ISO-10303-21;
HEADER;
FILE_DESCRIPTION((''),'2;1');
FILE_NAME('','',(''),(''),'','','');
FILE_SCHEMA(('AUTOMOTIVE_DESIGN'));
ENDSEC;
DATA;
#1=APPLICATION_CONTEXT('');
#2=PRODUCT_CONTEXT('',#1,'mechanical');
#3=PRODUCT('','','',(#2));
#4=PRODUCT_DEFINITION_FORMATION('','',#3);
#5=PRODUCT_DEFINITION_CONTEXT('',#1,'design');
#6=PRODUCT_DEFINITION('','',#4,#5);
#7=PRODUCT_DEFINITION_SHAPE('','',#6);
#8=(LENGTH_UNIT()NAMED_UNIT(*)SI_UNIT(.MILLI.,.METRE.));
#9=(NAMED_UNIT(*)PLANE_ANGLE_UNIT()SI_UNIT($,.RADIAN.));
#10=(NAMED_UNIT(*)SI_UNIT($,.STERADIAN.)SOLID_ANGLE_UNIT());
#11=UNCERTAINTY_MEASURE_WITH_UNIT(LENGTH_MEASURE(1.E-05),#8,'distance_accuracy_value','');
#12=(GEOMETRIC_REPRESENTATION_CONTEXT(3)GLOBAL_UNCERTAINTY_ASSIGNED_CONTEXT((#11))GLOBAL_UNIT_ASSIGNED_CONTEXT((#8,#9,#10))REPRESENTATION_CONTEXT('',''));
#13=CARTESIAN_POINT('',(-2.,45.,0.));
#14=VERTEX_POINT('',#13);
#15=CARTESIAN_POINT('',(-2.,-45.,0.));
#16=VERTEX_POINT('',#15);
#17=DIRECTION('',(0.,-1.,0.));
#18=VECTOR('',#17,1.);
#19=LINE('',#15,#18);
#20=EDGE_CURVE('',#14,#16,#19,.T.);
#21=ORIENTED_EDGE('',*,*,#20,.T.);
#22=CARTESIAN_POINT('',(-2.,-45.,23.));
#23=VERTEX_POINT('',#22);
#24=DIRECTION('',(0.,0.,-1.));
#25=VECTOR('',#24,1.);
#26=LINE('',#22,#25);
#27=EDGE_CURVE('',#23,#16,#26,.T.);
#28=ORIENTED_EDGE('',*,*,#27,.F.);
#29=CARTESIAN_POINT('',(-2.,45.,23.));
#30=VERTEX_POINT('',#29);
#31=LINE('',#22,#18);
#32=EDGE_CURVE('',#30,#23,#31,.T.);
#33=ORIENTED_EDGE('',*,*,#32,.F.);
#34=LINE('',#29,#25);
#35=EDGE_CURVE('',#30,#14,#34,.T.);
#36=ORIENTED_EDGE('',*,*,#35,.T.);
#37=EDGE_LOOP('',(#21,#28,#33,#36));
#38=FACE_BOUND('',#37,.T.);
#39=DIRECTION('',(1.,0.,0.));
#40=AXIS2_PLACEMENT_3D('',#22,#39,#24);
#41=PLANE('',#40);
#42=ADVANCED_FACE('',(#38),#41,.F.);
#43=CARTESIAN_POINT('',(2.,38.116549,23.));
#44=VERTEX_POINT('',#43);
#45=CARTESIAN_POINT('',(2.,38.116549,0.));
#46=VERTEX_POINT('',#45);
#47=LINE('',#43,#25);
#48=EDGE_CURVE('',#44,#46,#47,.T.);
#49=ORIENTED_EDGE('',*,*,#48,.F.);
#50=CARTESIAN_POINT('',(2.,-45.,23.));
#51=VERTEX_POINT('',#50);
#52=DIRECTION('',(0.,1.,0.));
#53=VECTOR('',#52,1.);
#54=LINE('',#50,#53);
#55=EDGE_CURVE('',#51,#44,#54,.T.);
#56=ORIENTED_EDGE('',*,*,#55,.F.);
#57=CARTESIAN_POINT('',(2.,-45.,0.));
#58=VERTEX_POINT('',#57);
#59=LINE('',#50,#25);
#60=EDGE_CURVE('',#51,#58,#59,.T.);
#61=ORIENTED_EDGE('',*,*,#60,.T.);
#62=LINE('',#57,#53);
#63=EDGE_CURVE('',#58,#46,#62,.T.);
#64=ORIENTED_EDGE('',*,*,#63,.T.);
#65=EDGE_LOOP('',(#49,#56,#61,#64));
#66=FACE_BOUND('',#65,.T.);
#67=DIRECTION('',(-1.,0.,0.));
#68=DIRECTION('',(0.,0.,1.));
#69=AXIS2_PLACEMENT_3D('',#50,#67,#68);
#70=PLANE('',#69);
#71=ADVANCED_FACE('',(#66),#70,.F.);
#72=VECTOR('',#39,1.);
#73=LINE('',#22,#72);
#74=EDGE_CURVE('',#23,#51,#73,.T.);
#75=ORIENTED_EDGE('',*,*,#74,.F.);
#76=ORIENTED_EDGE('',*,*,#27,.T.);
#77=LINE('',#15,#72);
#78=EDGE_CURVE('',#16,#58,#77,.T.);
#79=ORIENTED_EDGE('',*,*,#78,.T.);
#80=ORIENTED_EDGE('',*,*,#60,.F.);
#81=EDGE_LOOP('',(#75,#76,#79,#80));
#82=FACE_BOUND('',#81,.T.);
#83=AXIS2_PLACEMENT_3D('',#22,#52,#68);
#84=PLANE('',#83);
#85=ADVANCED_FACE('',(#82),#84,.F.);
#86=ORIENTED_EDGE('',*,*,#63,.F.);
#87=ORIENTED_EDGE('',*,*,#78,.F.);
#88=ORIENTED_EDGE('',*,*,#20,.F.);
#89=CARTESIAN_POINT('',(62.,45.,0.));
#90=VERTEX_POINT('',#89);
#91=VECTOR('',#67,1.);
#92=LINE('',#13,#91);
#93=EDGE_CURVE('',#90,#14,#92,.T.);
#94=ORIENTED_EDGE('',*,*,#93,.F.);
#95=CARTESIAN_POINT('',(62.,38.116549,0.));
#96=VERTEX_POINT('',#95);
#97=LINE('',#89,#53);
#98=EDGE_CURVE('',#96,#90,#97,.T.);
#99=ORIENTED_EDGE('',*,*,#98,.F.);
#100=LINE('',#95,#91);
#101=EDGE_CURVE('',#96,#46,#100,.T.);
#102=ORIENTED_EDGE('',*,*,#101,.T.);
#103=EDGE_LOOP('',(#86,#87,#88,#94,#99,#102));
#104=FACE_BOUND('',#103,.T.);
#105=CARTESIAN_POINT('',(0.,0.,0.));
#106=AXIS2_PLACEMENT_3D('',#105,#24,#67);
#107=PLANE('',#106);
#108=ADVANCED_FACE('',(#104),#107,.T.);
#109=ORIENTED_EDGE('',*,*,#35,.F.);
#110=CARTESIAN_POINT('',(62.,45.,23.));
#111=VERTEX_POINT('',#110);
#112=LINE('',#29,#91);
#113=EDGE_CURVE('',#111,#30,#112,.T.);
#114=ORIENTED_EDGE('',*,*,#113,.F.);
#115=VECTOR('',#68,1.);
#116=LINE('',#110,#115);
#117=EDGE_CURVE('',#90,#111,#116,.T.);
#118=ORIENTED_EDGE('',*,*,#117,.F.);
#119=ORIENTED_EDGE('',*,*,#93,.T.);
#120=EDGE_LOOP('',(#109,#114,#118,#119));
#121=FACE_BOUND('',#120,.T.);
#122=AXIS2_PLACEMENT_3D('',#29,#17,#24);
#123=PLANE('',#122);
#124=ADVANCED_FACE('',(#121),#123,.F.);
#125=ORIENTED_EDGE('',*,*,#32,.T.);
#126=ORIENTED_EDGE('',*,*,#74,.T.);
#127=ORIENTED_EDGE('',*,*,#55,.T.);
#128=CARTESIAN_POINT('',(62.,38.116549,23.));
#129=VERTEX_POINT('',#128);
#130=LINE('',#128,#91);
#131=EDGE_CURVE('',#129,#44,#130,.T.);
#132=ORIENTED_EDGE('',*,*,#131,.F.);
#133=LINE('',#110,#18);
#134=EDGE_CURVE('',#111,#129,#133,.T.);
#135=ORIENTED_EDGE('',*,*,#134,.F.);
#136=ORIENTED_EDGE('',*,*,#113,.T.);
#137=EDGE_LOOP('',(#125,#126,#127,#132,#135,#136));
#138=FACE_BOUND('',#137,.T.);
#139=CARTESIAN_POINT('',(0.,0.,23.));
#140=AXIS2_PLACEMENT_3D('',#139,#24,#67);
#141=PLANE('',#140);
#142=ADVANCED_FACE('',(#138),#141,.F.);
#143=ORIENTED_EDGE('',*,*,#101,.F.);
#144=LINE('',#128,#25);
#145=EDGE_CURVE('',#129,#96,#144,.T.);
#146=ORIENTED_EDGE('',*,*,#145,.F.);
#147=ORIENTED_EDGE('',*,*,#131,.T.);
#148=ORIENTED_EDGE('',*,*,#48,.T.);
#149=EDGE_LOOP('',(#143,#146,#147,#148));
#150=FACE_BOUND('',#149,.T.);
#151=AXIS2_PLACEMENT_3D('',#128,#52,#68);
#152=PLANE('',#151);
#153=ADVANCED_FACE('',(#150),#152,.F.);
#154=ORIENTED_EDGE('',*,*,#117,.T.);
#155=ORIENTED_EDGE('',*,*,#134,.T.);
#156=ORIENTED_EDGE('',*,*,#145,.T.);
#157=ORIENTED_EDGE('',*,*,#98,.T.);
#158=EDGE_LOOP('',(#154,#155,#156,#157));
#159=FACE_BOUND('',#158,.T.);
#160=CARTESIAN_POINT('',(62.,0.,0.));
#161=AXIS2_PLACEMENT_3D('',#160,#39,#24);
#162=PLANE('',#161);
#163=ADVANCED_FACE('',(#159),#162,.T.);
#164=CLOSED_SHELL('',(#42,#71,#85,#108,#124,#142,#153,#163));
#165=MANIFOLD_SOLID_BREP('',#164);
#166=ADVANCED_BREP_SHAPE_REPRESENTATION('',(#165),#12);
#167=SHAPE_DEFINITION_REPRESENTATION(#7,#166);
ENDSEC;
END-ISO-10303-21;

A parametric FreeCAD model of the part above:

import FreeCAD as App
import Part
import Sketcher
from FreeCAD import Vector


def add_polygon(sketch, points):
    """Adds a closed chain of lines whose ends are joined by coincident constraints."""
    first, n = sketch.GeometryCount, len(points)
    for a, b in zip(points, points[1:] + points[:1]):
        sketch.addGeometry(Part.LineSegment(App.Vector(*a, 0), App.Vector(*b, 0)), False)
    for i in range(n):
        sketch.addConstraint(Sketcher.Constraint("Coincident", first + i, 2, first + (i + 1) % n, 1))

doc = App.newDocument("Part")
body = doc.addObject("PartDesign::Body", "Body")

sketch1 = body.newObject("Sketcher::SketchObject", "Sketch")
sketch1.AttachmentSupport = (doc.getObject("XY_Plane"), [""])
sketch1.MapMode = "FlatFace"
add_polygon(sketch1, [(-2, 45), (-2, -45), (2, -45), (2, 45)])
sketch1.addConstraint(Sketcher.Constraint("Vertical", 0))
sketch1.addConstraint(Sketcher.Constraint("Horizontal", 1))
sketch1.addConstraint(Sketcher.Constraint("Vertical", 2))
sketch1.addConstraint(Sketcher.Constraint("Horizontal", 3))
sketch1.addConstraint(Sketcher.Constraint("Symmetric", 0, 2, 2, 2, -1, 1))
sketch1.addConstraint(Sketcher.Constraint("DistanceX", 1, 1, 1, 2, 4.0))
sketch1.addConstraint(Sketcher.Constraint("DistanceY", 0, 2, 0, 1, 90.0))
pad1 = body.newObject("PartDesign::Pad", "Pad")
pad1.Profile = sketch1
pad1.Length = 23

sketch2 = body.newObject("Sketcher::SketchObject", "Sketch001")
sketch2.AttachmentSupport = (doc.getObject("YZ_Plane"), [""])
sketch2.MapMode = "FlatFace"
sketch2.AttachmentOffset = App.Placement(Vector(0, 0, 2), App.Rotation())
add_polygon(sketch2, [(45, 23), (38, 23), (38, 0), (45, 0)])
sketch2.addConstraint(Sketcher.Constraint("Horizontal", 0))
sketch2.addConstraint(Sketcher.Constraint("Vertical", 1))
sketch2.addConstraint(Sketcher.Constraint("Horizontal", 2))
sketch2.addConstraint(Sketcher.Constraint("Vertical", 3))
sketch2.addConstraint(Sketcher.Constraint("PointOnObject", 1, 2, -1))
sketch2.addConstraint(Sketcher.Constraint("DistanceY", 1, 2, 1, 1, 23.0))
sketch2.addConstraint(Sketcher.Constraint("DistanceX", -1, 1, 2, 2, 45.0))
sketch2.addConstraint(Sketcher.Constraint("DistanceX", 0, 2, 0, 1, 6.883451))
pad2 = body.newObject("PartDesign::Pad", "Pad001")
pad2.Profile = sketch2
pad2.Length = 60

doc.recompute()
